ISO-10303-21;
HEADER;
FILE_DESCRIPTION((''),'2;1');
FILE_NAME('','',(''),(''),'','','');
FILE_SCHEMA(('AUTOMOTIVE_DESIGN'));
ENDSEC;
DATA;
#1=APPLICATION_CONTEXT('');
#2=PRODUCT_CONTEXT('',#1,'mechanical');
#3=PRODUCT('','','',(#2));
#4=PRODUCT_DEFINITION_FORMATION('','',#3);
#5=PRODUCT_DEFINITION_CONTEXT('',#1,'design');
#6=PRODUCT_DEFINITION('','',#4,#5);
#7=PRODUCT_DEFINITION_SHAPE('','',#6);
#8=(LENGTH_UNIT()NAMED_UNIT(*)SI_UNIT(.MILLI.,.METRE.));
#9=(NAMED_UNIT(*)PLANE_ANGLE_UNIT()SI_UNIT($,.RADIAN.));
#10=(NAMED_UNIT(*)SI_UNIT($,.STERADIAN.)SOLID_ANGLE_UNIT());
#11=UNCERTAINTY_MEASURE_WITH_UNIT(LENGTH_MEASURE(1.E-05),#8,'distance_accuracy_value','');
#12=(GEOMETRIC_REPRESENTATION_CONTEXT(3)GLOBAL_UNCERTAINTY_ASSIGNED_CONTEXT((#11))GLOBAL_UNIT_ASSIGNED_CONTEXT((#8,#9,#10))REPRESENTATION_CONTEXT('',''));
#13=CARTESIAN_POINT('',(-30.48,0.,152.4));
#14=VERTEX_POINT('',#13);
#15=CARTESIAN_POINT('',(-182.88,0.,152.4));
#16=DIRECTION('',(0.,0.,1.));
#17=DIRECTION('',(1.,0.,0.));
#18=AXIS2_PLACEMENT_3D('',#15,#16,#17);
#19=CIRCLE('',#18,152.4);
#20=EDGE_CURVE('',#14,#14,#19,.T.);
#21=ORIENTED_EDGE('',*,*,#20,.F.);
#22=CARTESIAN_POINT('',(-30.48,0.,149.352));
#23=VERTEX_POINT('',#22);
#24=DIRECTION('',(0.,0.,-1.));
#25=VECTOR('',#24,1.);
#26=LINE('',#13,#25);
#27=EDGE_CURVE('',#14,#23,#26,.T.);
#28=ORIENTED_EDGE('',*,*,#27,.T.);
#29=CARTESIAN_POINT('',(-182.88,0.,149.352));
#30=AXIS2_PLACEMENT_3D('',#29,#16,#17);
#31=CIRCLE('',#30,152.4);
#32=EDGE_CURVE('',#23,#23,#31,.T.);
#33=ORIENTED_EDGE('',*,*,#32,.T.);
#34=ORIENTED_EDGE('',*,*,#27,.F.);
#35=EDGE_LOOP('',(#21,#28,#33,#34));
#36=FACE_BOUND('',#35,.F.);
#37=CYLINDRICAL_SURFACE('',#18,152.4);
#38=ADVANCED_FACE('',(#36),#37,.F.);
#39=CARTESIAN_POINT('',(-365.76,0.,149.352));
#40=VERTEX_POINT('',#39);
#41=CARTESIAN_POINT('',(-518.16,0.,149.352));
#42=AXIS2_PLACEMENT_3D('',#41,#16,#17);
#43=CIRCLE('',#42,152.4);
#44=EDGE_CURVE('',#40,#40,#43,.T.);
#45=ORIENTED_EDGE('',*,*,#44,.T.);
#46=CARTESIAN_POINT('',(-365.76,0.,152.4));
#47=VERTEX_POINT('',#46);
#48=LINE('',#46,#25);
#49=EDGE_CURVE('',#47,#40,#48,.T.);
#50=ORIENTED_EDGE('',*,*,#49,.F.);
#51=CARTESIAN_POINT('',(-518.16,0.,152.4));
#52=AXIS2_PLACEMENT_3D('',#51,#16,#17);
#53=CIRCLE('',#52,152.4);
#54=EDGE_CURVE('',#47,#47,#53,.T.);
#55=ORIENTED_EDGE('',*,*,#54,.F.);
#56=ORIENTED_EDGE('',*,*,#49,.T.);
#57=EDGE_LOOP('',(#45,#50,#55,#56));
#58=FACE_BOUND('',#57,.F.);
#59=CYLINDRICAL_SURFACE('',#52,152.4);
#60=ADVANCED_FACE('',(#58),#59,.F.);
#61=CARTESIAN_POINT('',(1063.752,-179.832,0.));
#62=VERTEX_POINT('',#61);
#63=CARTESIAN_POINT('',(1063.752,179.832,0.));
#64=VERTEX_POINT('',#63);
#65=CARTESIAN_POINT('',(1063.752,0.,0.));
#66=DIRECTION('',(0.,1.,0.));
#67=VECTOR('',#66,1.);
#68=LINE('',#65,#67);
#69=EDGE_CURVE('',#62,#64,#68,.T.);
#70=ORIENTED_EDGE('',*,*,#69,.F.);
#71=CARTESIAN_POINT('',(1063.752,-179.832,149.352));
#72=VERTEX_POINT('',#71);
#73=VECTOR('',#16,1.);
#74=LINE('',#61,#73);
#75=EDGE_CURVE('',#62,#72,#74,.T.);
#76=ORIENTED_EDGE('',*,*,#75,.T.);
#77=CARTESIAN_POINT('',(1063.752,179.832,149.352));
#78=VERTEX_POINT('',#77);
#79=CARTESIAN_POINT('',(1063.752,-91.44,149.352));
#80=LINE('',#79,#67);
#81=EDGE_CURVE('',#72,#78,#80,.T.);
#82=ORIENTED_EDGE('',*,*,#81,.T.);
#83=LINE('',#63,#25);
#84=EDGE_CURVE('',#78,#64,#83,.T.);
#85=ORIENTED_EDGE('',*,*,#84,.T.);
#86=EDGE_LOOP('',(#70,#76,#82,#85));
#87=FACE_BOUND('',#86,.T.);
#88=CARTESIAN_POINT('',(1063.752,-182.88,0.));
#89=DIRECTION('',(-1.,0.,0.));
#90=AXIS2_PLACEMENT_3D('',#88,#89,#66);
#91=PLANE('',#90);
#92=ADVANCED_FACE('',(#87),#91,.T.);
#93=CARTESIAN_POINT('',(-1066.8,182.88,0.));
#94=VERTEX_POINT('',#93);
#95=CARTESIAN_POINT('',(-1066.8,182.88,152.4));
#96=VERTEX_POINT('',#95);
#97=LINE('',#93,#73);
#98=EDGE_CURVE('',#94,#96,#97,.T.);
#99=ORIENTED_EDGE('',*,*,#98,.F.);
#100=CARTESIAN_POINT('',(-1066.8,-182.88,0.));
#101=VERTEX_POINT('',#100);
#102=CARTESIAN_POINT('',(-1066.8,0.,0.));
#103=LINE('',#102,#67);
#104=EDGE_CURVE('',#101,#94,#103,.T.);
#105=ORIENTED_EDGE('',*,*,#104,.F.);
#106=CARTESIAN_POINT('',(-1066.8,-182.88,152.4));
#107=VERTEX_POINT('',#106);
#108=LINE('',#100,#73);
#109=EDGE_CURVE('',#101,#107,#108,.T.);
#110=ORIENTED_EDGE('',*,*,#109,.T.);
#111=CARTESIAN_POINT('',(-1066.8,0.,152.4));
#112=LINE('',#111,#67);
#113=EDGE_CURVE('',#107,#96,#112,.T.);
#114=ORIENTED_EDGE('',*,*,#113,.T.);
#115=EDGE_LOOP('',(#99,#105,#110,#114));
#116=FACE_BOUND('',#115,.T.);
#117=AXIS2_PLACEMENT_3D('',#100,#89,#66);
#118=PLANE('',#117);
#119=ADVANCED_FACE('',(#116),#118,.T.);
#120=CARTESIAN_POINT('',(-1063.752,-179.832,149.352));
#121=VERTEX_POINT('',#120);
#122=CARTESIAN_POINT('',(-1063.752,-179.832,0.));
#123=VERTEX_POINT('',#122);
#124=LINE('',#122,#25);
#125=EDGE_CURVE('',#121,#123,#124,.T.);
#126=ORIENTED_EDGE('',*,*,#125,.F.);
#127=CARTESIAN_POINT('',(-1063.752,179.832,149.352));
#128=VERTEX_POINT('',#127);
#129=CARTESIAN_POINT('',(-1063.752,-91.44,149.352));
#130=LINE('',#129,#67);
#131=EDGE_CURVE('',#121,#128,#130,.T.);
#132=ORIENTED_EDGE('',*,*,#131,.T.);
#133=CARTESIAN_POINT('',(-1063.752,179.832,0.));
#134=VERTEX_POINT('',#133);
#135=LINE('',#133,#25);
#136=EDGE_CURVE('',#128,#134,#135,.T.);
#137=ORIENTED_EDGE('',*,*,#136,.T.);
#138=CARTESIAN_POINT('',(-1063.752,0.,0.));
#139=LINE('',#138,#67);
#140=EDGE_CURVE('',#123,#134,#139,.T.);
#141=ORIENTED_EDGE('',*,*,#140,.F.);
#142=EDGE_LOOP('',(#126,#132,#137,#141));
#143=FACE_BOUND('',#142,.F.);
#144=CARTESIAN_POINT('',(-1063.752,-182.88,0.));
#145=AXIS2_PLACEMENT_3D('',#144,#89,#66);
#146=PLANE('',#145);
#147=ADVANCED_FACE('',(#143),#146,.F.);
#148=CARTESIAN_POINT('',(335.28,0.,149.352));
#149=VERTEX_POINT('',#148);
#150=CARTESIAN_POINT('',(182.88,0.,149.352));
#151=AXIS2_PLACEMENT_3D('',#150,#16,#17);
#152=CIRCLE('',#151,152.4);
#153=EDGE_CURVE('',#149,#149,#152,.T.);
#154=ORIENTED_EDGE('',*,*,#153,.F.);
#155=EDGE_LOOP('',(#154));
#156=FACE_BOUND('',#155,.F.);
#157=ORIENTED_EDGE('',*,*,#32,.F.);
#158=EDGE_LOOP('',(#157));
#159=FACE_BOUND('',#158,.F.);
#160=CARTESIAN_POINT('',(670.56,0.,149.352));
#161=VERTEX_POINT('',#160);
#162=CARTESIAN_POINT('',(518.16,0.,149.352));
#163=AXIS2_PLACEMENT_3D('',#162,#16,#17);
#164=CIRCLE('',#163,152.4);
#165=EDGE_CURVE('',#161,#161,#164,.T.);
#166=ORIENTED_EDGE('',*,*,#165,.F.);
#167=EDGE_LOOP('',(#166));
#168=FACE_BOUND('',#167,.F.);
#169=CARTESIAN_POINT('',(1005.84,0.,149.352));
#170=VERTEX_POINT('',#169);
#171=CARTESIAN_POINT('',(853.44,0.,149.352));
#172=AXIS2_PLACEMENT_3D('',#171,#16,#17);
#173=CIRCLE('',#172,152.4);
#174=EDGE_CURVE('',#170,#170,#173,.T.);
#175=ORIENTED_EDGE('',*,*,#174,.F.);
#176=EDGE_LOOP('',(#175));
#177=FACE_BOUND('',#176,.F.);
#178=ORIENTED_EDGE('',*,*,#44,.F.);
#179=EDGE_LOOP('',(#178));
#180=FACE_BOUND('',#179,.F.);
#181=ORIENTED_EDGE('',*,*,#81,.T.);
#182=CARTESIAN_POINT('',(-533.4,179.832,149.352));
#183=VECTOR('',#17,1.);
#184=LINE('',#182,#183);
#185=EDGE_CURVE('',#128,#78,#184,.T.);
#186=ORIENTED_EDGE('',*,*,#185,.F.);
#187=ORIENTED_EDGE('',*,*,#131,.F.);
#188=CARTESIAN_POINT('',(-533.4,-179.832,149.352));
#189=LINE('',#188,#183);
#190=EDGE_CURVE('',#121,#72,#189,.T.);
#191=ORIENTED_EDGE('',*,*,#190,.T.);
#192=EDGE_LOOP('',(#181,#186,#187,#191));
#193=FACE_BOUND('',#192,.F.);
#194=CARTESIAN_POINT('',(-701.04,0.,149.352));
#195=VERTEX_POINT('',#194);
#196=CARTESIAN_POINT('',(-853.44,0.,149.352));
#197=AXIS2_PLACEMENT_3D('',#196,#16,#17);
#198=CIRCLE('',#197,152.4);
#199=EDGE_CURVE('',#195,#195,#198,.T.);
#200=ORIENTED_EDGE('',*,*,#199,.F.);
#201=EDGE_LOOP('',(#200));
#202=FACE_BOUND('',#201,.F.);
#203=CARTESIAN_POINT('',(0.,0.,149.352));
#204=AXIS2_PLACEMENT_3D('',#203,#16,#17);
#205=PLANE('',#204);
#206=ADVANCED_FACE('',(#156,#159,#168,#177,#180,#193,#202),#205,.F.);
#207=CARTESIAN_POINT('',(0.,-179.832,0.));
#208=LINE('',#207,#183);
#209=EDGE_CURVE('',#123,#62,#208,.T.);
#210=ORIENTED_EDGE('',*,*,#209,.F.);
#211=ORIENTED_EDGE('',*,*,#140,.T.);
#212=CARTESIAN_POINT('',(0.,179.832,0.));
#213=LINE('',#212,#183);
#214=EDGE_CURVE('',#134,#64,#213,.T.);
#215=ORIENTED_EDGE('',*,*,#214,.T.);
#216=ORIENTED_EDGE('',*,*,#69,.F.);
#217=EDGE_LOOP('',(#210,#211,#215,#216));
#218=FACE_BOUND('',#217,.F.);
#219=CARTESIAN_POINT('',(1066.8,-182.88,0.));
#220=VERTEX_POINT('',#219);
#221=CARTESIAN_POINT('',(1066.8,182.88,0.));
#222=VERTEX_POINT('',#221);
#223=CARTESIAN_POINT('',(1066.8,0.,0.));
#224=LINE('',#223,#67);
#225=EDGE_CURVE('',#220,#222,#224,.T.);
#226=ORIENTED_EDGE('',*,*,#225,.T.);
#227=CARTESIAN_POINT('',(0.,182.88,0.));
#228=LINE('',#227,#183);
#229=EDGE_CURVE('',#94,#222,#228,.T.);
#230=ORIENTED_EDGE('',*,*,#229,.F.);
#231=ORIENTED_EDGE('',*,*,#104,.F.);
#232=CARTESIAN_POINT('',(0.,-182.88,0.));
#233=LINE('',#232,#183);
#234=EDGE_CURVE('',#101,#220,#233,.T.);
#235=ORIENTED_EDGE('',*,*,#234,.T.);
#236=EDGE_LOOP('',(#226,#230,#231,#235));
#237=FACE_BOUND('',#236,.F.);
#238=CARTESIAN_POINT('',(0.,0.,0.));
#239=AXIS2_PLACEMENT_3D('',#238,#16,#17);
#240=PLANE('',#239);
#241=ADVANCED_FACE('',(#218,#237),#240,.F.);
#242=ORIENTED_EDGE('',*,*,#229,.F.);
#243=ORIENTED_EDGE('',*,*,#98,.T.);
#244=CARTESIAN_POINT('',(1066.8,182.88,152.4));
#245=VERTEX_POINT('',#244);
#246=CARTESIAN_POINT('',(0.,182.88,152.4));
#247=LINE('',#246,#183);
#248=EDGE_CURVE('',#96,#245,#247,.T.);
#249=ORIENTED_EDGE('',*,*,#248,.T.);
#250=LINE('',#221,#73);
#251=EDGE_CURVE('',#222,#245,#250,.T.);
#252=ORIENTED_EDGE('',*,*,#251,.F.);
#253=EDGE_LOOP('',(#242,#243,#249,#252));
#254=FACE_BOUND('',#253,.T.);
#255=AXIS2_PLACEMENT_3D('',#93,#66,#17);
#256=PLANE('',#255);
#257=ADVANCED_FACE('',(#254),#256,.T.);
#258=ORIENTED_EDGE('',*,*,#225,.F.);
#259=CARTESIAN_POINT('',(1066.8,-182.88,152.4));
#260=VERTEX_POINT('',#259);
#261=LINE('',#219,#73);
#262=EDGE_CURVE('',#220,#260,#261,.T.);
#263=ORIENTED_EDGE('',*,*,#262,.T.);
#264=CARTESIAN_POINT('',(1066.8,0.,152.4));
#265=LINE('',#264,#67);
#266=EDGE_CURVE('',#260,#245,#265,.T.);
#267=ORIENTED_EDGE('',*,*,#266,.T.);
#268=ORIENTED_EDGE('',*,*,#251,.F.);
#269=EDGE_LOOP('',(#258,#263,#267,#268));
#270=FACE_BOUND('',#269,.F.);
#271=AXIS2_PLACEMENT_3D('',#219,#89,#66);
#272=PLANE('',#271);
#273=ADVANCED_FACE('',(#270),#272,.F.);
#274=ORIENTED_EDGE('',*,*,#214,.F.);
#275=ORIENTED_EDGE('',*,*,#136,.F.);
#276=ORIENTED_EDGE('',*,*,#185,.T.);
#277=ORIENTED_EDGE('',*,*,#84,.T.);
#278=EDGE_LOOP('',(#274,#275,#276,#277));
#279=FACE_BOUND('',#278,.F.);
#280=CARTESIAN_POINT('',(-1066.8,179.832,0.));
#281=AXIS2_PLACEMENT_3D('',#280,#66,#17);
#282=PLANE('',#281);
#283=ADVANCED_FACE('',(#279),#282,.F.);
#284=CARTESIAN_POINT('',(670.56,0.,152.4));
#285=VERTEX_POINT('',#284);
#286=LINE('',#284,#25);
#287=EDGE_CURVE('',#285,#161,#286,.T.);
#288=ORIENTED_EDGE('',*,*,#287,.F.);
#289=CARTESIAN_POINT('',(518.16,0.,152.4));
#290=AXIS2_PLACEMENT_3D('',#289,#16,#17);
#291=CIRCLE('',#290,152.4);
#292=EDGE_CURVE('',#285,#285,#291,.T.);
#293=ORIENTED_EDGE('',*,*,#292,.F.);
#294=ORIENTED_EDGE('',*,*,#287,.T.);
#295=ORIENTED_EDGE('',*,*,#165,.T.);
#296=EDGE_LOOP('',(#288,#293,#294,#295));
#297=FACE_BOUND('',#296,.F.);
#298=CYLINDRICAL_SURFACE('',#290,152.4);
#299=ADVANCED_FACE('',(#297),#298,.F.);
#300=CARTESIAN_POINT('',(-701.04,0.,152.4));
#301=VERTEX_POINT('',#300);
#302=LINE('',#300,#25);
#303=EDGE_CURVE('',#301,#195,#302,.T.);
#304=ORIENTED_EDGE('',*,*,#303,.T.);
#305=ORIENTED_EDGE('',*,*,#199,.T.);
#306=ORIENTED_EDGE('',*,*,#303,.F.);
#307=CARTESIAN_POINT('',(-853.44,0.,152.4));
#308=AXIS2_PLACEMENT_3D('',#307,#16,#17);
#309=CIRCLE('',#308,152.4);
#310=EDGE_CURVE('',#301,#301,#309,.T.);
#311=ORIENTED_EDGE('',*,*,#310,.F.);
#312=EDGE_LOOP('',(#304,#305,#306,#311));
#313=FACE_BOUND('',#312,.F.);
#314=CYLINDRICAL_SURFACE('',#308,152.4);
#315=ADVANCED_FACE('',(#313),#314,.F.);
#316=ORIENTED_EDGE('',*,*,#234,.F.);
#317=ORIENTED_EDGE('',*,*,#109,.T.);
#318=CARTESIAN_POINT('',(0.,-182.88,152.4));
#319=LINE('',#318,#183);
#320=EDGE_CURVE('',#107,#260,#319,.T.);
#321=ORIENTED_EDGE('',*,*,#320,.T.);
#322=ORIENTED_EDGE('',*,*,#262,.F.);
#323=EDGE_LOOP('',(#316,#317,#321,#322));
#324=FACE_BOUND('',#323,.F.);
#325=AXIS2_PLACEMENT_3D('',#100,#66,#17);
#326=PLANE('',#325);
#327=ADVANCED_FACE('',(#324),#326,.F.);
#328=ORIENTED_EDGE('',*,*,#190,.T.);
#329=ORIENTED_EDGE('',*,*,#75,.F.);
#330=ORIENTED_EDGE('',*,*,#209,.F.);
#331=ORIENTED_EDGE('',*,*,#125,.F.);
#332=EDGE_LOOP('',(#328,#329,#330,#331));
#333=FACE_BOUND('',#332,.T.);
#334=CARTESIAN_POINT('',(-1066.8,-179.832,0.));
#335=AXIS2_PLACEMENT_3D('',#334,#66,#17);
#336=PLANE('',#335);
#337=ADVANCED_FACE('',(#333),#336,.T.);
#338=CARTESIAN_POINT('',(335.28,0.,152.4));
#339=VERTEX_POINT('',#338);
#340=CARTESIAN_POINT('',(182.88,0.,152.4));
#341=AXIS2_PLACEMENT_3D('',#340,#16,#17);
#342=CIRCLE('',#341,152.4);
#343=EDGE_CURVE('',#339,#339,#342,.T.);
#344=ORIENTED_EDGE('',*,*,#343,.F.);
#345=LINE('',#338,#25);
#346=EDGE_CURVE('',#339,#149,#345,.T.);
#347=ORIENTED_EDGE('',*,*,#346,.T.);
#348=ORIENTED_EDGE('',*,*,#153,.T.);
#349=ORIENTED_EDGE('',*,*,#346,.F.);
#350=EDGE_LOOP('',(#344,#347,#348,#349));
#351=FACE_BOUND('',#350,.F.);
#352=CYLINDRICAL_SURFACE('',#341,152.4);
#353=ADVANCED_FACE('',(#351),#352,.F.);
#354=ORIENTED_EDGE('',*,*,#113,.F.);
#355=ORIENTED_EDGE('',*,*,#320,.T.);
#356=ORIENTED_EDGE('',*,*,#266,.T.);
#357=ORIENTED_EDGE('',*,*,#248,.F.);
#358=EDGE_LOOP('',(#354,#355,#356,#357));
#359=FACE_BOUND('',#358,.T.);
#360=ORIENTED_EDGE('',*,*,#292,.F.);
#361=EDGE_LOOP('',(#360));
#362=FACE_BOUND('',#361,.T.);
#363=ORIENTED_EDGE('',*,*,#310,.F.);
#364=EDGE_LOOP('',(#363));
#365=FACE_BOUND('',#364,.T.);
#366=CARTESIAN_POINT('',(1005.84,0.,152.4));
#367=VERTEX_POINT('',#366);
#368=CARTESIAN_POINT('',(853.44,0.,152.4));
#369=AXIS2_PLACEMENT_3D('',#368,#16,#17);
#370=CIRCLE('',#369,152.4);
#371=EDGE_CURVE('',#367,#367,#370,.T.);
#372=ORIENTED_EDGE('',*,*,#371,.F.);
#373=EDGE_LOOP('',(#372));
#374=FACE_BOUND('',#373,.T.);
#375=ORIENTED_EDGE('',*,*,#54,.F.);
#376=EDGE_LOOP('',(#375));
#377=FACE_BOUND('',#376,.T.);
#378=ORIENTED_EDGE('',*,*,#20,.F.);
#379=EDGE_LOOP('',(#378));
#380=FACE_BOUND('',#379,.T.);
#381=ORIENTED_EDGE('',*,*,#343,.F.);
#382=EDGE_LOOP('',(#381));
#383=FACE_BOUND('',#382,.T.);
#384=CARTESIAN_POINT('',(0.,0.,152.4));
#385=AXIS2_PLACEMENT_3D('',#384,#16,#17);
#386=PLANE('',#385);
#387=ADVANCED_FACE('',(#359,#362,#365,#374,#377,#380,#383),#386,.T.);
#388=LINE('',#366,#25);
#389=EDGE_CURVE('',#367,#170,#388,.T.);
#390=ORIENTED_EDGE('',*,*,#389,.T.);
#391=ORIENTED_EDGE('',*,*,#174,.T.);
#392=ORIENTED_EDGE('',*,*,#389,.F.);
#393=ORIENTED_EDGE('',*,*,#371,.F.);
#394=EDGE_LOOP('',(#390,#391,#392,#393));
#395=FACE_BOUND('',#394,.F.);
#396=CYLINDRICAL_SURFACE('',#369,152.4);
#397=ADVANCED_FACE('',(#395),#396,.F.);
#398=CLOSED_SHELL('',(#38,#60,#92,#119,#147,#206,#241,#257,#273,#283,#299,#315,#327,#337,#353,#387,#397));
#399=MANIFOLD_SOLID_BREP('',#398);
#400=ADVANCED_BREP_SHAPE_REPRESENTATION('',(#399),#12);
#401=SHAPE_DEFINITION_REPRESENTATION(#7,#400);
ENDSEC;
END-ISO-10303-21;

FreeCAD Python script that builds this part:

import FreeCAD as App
import Part
import Sketcher

V = App.Vector
Q = App.Units.Quantity


def faces_at(feature, points):
    """Names of the faces that lie closest to the given points."""
    faces = feature.Shape.Faces
    near = lambda p: min(range(len(faces)), key=lambda i: faces[i].distToShape(Part.Vertex(*p))[0])
    return sorted({f"Face{near(p) + 1}" for p in points})


def add_polygon(sketch, points):
    """Adds a closed chain of lines whose ends are joined by coincident constraints."""
    first, n = sketch.GeometryCount, len(points)
    for a, b in zip(points, points[1:] + points[:1]):
        sketch.addGeometry(Part.LineSegment(App.Vector(*a, 0), App.Vector(*b, 0)), False)
    for i in range(n):
        sketch.addConstraint(Sketcher.Constraint("Coincident", first + i, 2, first + (i + 1) % n, 1))

doc = App.newDocument("Part")
body = doc.addObject("PartDesign::Body", "Body")

sketch1 = body.newObject("Sketcher::SketchObject", "Sketch")
sketch1.AttachmentSupport = (doc.getObject("XY_Plane"), [""])
sketch1.MapMode = "FlatFace"
add_polygon(sketch1, [(-1067, 183), (-1067, -183), (1067, -183), (1067, 183)])
sketch1.addConstraint(Sketcher.Constraint("Vertical", 0))
sketch1.addConstraint(Sketcher.Constraint("Horizontal", 1))
sketch1.addConstraint(Sketcher.Constraint("Vertical", 2))
sketch1.addConstraint(Sketcher.Constraint("Horizontal", 3))
sketch1.addConstraint(Sketcher.Constraint("Symmetric", 0, 2, 2, 2, -1, 1))
sketch1.addConstraint(Sketcher.Constraint("DistanceX", 1, 1, 1, 2, Q("84 in")))
sketch1.addConstraint(Sketcher.Constraint("DistanceY", 0, 2, 0, 1, Q("14.4 in")))
pad1 = body.newObject("PartDesign::Pad", "Pad")
pad1.Profile = sketch1
pad1.Length = Q("6 in")
doc.recompute()

thickness = body.newObject("PartDesign::Thickness", "Thickness")
thickness.Base = (pad1, faces_at(pad1, [(0, 0, 0)]))
thickness.Value = Q("0.12 in")
thickness.Reversed = True
thickness.Join = "Arc"

sketch2 = body.newObject("Sketcher::SketchObject", "Sketch001")
sketch2.AttachmentSupport = (doc.getObject("XY_Plane"), [""])
sketch2.MapMode = "FlatFace"
sketch2.AttachmentOffset = App.Placement(V(0, 0, 6 * 25.4), App.Rotation())
sketch2.addGeometry(Part.Circle(V(183, 0, 0), V(0, 0, 1), 152), False)
sketch2.addGeometry(Part.Circle(V(518, 0, 0), V(0, 0, 1), 152), False)
sketch2.addGeometry(Part.Circle(V(853, 0, 0), V(0, 0, 1), 152), False)
sketch2.addGeometry(Part.Circle(V(-183, 0, 0), V(0, 0, 1), 152), False)
sketch2.addGeometry(Part.Circle(V(-518, 0, 0), V(0, 0, 1), 152), False)
sketch2.addGeometry(Part.Circle(V(-853, 0, 0), V(0, 0, 1), 152), False)
sketch2.addConstraint(Sketcher.Constraint("Equal", 0, 1))
sketch2.addConstraint(Sketcher.Constraint("Equal", 1, 2))
sketch2.addConstraint(Sketcher.Constraint("Equal", 2, 3))
sketch2.addConstraint(Sketcher.Constraint("Equal", 3, 4))
sketch2.addConstraint(Sketcher.Constraint("Equal", 4, 5))
sketch2.addConstraint(Sketcher.Constraint("Symmetric", 0, 3, 3, 3, -1, 1))
sketch2.addConstraint(Sketcher.Constraint("Symmetric", 1, 3, 4, 3, -1, 1))
sketch2.addConstraint(Sketcher.Constraint("Symmetric", 2, 3, 5, 3, -1, 1))
sketch2.addConstraint(Sketcher.Constraint("PointOnObject", 0, 3, -1))
sketch2.addConstraint(Sketcher.Constraint("PointOnObject", 1, 3, -1))
sketch2.addConstraint(Sketcher.Constraint("PointOnObject", 2, 3, -1))
sketch2.addConstraint(Sketcher.Constraint("Diameter", 0, Q("12 in")))
sketch2.addConstraint(Sketcher.Constraint("DistanceX", 4, 3, 2, 3, Q("54 in")))
sketch2.addConstraint(Sketcher.Constraint("DistanceX", -1, 1, 0, 3, Q("7.2 in")))
sketch2.addConstraint(Sketcher.Constraint("DistanceX", -1, 1, 1, 3, Q("20.4 in")))
pocket1 = body.newObject("PartDesign::Pocket", "Pocket")
pocket1.Profile = sketch2
pocket1.Type = "ThroughAll"

doc.recompute()
